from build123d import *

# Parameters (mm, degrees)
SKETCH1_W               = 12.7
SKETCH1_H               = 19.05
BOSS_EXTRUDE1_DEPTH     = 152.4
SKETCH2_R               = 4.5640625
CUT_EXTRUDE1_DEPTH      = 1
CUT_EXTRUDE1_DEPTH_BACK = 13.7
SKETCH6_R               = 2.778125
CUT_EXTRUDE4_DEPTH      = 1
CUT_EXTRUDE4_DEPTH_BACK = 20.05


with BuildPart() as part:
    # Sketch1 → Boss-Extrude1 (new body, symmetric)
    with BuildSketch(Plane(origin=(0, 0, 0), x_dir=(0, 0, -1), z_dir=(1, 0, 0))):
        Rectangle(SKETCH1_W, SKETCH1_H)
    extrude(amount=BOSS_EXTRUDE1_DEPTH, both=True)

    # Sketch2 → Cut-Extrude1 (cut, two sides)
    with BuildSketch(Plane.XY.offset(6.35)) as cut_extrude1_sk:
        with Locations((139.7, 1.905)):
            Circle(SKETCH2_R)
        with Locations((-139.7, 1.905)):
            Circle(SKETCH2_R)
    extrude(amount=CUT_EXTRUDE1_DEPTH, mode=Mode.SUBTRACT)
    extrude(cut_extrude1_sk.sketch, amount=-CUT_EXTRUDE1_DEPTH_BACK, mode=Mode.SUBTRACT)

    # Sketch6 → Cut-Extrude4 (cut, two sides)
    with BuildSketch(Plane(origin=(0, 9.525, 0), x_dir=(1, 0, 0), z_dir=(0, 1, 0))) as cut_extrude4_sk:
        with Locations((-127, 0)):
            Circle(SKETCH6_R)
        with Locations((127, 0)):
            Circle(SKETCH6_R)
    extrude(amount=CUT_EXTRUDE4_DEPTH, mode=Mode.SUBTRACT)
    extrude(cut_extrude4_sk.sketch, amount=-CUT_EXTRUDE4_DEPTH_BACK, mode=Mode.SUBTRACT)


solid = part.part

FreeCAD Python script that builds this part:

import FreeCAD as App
import Part
import Sketcher
from FreeCAD import Vector
Q = App.Units.Quantity

doc = App.newDocument("Part")
body = doc.addObject("PartDesign::Body", "Body")

# Sketch on YZ plane
sketch1 = body.newObject("Sketcher::SketchObject", "Sketch")
sketch1.AttachmentSupport = (doc.getObject("YZ_Plane"), [""])
sketch1.MapMode = "FlatFace"
sketch1.addGeometry(Part.LineSegment(Vector(10, 6, 0), Vector(-10, 6, 0)), False)
sketch1.addGeometry(Part.LineSegment(Vector(-10, 6, 0), Vector(-10, -6, 0)), False)
sketch1.addGeometry(Part.LineSegment(Vector(-10, -6, 0), Vector(10, -6, 0)), False)
sketch1.addGeometry(Part.LineSegment(Vector(10, -6, 0), Vector(10, 6, 0)), False)
sketch1.addConstraint(Sketcher.Constraint("Coincident", 0, 2, 1, 1))
sketch1.addConstraint(Sketcher.Constraint("Coincident", 1, 2, 2, 1))
sketch1.addConstraint(Sketcher.Constraint("Coincident", 2, 2, 3, 1))
sketch1.addConstraint(Sketcher.Constraint("Coincident", 3, 2, 0, 1))
sketch1.addConstraint(Sketcher.Constraint("Horizontal", 0))
sketch1.addConstraint(Sketcher.Constraint("Vertical", 1))
sketch1.addConstraint(Sketcher.Constraint("Horizontal", 2))
sketch1.addConstraint(Sketcher.Constraint("Vertical", 3))
sketch1.addConstraint(Sketcher.Constraint("Symmetric", 0, 2, 2, 2, -1, 1))
sketch1.addConstraint(Sketcher.Constraint("DistanceY", 1, 2, 1, 1, Q("0.5 in")))
sketch1.addConstraint(Sketcher.Constraint("DistanceX", 0, 2, 0, 1, Q("0.75 in")))
pad1 = body.newObject("PartDesign::Pad", "Pad")
pad1.Profile = sketch1
pad1.Length = Q("12 in")
pad1.Midplane = True

# Sketch on XY plane
sketch2 = body.newObject("Sketcher::SketchObject", "Sketch001")
sketch2.AttachmentSupport = (doc.getObject("XY_Plane"), [""])
sketch2.MapMode = "FlatFace"
sketch2.AttachmentOffset = App.Placement(Vector(0, 0, 0.25 * 25.4), App.Rotation())
sketch2.addGeometry(Part.Circle(Vector(139.7, 1.9, 0), Vector(0, 0, 1), 4.6), False)
sketch2.addGeometry(Part.Circle(Vector(-139.7, 1.9, 0), Vector(0, 0, 1), 4.6), False)
sketch2.addConstraint(Sketcher.Constraint("Equal", 0, 1))
sketch2.addConstraint(Sketcher.Constraint("Symmetric", 0, 3, 1, 3, -2))
sketch2.addConstraint(Sketcher.Constraint("Diameter", 0, Q("0.359375 in")))
sketch2.addConstraint(Sketcher.Constraint("DistanceX", 1, 3, 0, 3, Q("11 in")))
sketch2.addConstraint(Sketcher.Constraint("DistanceY", -1, 1, 0, 3, Q("0.075 in")))
pocket1 = body.newObject("PartDesign::Pocket", "Pocket")
pocket1.Profile = sketch2
pocket1.Type = "ThroughAll"
pocket1.Midplane = True

# Sketch on XZ plane
sketch3 = body.newObject("Sketcher::SketchObject", "Sketch002")
sketch3.AttachmentSupport = (doc.getObject("XZ_Plane"), [""])
sketch3.MapMode = "FlatFace"
sketch3.AttachmentOffset = App.Placement(Vector(0, 0, -0.375 * 25.4), App.Rotation())
sketch3.addGeometry(Part.Circle(Vector(-127, 0, 0), Vector(0, 0, 1), 2.8), False)
sketch3.addGeometry(Part.Circle(Vector(127, 0, 0), Vector(0, 0, 1), 2.8), False)
sketch3.addConstraint(Sketcher.Constraint("Equal", 0, 1))
sketch3.addConstraint(Sketcher.Constraint("Symmetric", 0, 3, 1, 3, -1, 1))
sketch3.addConstraint(Sketcher.Constraint("PointOnObject", 0, 3, -1))
sketch3.addConstraint(Sketcher.Constraint("Diameter", 0, Q("0.21875 in")))
sketch3.addConstraint(Sketcher.Constraint("DistanceX", 0, 3, -1, 1, Q("5 in")))
pocket2 = body.newObject("PartDesign::Pocket", "Pocket001")
pocket2.Profile = sketch3
pocket2.Type = "ThroughAll"
pocket2.Midplane = True

doc.recompute()
